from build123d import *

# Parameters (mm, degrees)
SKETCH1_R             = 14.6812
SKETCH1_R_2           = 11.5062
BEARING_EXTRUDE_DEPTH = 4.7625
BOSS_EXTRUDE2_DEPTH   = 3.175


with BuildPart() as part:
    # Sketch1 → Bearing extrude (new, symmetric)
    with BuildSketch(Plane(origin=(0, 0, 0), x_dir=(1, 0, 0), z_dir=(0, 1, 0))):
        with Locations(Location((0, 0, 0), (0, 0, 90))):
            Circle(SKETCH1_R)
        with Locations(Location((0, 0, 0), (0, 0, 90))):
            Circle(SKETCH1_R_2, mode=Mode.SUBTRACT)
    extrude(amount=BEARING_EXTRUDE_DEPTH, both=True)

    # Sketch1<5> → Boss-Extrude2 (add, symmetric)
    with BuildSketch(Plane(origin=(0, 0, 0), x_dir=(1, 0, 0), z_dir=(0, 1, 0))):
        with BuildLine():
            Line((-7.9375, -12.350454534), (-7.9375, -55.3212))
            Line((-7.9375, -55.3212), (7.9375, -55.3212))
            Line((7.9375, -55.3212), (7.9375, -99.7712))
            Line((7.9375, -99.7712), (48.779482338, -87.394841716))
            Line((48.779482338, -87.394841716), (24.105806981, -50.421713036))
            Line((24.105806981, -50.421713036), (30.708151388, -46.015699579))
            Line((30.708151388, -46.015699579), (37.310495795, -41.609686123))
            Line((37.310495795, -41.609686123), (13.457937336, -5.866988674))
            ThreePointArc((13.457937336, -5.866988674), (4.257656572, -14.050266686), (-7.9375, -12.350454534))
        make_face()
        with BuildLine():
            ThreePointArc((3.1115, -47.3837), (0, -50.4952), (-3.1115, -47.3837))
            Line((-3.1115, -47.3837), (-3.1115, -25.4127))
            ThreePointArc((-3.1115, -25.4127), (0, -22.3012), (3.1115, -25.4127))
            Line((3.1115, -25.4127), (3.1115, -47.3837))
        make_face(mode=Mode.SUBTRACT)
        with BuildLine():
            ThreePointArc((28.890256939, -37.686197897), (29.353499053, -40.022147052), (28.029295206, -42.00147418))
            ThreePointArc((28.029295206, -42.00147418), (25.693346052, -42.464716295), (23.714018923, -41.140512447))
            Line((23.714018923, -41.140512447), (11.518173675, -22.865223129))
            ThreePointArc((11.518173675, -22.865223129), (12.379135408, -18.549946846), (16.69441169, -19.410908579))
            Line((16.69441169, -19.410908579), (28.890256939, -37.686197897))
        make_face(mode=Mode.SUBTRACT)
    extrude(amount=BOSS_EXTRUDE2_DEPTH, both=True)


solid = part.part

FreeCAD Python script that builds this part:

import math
import FreeCAD as App
import Part
import Sketcher
from FreeCAD import Vector
Q = App.Units.Quantity

doc = App.newDocument("Part")
body = doc.addObject("PartDesign::Body", "Body")

sketch1 = body.newObject("Sketcher::SketchObject", "Sketch")
sketch1.AttachmentSupport = (doc.getObject("XZ_Plane"), [""])
sketch1.MapMode = "FlatFace"
sketch1.addGeometry(Part.Circle(Vector(0, 0, 0), Vector(0, 0, 1), 15), False)
sketch1.addGeometry(Part.Circle(Vector(0, 0, 0), Vector(0, 0, 1), 12), False)
sketch1.addConstraint(Sketcher.Constraint("Coincident", 0, 3, -1, 1))
sketch1.addConstraint(Sketcher.Constraint("Coincident", 1, 3, -1, 1))
sketch1.addConstraint(Sketcher.Constraint("Diameter", 0, Q("1.156 in")))
sketch1.addConstraint(Sketcher.Constraint("Diameter", 1, Q("0.906 in")))
pad1 = body.newObject("PartDesign::Pad", "Pad")
pad1.Profile = sketch1
pad1.Length = Q("0.375 in")
pad1.Midplane = True

sketch2 = body.newObject("Sketcher::SketchObject", "Sketch001")
sketch2.AttachmentSupport = (doc.getObject("XZ_Plane"), [""])
sketch2.MapMode = "FlatFace"
sketch2.addGeometry(Part.LineSegment(Vector(-7.9, 12.4, 0), Vector(-7.9, 55.3, 0)), False)
sketch2.addGeometry(Part.LineSegment(Vector(-7.9, 55.3, 0), Vector(7.9, 55.3, 0)), False)
sketch2.addGeometry(Part.LineSegment(Vector(7.9, 55.3, 0), Vector(7.9, 99.8, 0)), False)
sketch2.addGeometry(Part.LineSegment(Vector(7.9, 99.8, 0), Vector(48.8, 87.4, 0)), False)
sketch2.addGeometry(Part.LineSegment(Vector(48.8, 87.4, 0), Vector(24.1, 50.4, 0)), False)
sketch2.addGeometry(Part.LineSegment(Vector(24.1, 50.4, 0), Vector(30.7, 46, 0)), False)
sketch2.addGeometry(Part.LineSegment(Vector(30.7, 46, 0), Vector(37.3, 41.6, 0)), False)
sketch2.addGeometry(Part.LineSegment(Vector(37.3, 41.6, 0), Vector(13.5, 5.9, 0)), False)
sketch2.addGeometry(Part.ArcOfCircle(Part.Circle(Vector(0, 0, 0), Vector(0, 0, 1), 14.7), math.radians(24), math.radians(123)), False)
sketch2.addGeometry(Part.LineSegment(Vector(3.1, 25.4, 0), Vector(3.1, 47.4, 0)), False)
sketch2.addGeometry(Part.ArcOfCircle(Part.Circle(Vector(0, 47.4, 0), Vector(0, 0, 1), 3.1), math.radians(0), math.radians(180)), False)
sketch2.addGeometry(Part.LineSegment(Vector(-3.1, 47.4, 0), Vector(-3.1, 25.4, 0)), False)
sketch2.addGeometry(Part.ArcOfCircle(Part.Circle(Vector(0, 25.4, 0), Vector(0, 0, 1), 3.1), math.radians(180), math.radians(360)), False)
sketch2.addGeometry(Part.LineSegment(Vector(16.7, 19.4, 0), Vector(28.9, 37.7, 0)), False)
sketch2.addGeometry(Part.ArcOfCircle(Part.Circle(Vector(26.3, 39.4, 0), Vector(0, 0, 1), 3.1), math.radians(-34), math.radians(56)), False)
sketch2.addGeometry(Part.ArcOfCircle(Part.Circle(Vector(26.3, 39.4, 0), Vector(0, 0, 1), 3.1), math.radians(56), math.radians(146)), False)
sketch2.addGeometry(Part.LineSegment(Vector(23.7, 41.1, 0), Vector(11.5, 22.9, 0)), False)
sketch2.addGeometry(Part.ArcOfCircle(Part.Circle(Vector(14.1, 21.1, 0), Vector(0, 0, 1), 3.1), math.radians(146), math.radians(326)), False)
sketch2.addConstraint(Sketcher.Constraint("Coincident", 0, 2, 1, 1))
sketch2.addConstraint(Sketcher.Constraint("Coincident", 1, 2, 2, 1))
sketch2.addConstraint(Sketcher.Constraint("Coincident", 2, 2, 3, 1))
sketch2.addConstraint(Sketcher.Constraint("Coincident", 3, 2, 4, 1))
sketch2.addConstraint(Sketcher.Constraint("Coincident", 4, 2, 5, 1))
sketch2.addConstraint(Sketcher.Constraint("Coincident", 5, 2, 6, 1))
sketch2.addConstraint(Sketcher.Constraint("Coincident", 6, 2, 7, 1))
sketch2.addConstraint(Sketcher.Constraint("Coincident", 7, 2, 8, 1))
sketch2.addConstraint(Sketcher.Constraint("Coincident", 8, 2, 0, 1))
sketch2.addConstraint(Sketcher.Constraint("Tangent", 9, 2, 10, 1))
sketch2.addConstraint(Sketcher.Constraint("Tangent", 10, 2, 11, 1))
sketch2.addConstraint(Sketcher.Constraint("Tangent", 11, 2, 12, 1))
sketch2.addConstraint(Sketcher.Constraint("Tangent", 12, 2, 9, 1))
sketch2.addConstraint(Sketcher.Constraint("Tangent", 13, 2, 14, 1))
sketch2.addConstraint(Sketcher.Constraint("Tangent", 14, 2, 15, 1))
sketch2.addConstraint(Sketcher.Constraint("Tangent", 15, 2, 16, 1))
sketch2.addConstraint(Sketcher.Constraint("Tangent", 16, 2, 17, 1))
sketch2.addConstraint(Sketcher.Constraint("Tangent", 17, 2, 13, 1))
sketch2.addConstraint(Sketcher.Constraint("Vertical", 0))
sketch2.addConstraint(Sketcher.Constraint("Horizontal", 1))
sketch2.addConstraint(Sketcher.Constraint("Vertical", 2))
sketch2.addConstraint(Sketcher.Constraint("Vertical", 9))
sketch2.addConstraint(Sketcher.Constraint("Vertical", 11))
sketch2.addConstraint(Sketcher.Constraint("Coincident", 8, 3, -1, 1))
sketch2.addConstraint(Sketcher.Constraint("Equal", 12, 14))
sketch2.addConstraint(Sketcher.Constraint("Equal", 14, 15))
sketch2.addConstraint(Sketcher.Constraint("Equal", 15, 17))
sketch2.addConstraint(Sketcher.Constraint("PointOnObject", 10, 3, -2))
sketch2.addConstraint(Sketcher.Constraint("Perpendicular", 4, 5))
sketch2.addConstraint(Sketcher.Constraint("Parallel", 5, 6))
sketch2.addConstraint(Sketcher.Constraint("Perpendicular", 6, 7))
sketch2.addConstraint(Sketcher.Constraint("Parallel", 7, 13))
sketch2.addConstraint(Sketcher.Constraint("Equal", 5, 6))
sketch2.addConstraint(Sketcher.Constraint("Radius", 8, Q("0.578 in")))
sketch2.addConstraint(Sketcher.Constraint("DistanceY", 2, 1, 2, 2, Q("1.75 in")))
sketch2.addConstraint(Sketcher.Constraint("Radius", 10, Q("0.1225 in")))
sketch2.addConstraint(Sketcher.Constraint("Distance", 4, Q("1.75 in")))
sketch2.addConstraint(Sketcher.Constraint("DistanceX", 1, 1, 1, 2, Q("0.625 in")))
sketch2.addConstraint(Sketcher.Constraint("DistanceY", 9, 1, 9, 2, Q("0.865 in")))
sketch2.addConstraint(Sketcher.Constraint("DistanceX", 9, 2, 1, 2, Q("0.19 in")))
sketch2.addConstraint(Sketcher.Constraint("Distance", 5, Q("0.3125 in")))
sketch2.addConstraint(Sketcher.Constraint("Distance", 13, Q("0.865 in")))
sketch2.addConstraint(Sketcher.Constraint("DistanceY", -1, 1, 0, 2, Q("2.178 in")))
sketch2.addConstraint(Sketcher.Constraint("DistanceY", 10, 3, 0, 2, Q("0.3125 in")))
sketch2.addConstraint(Sketcher.Constraint("DistanceY", 15, 3, 4, 2, Q("0.4333999 in")))
sketch2.addConstraint(Sketcher.Constraint("DistanceX", 15, 3, 6, 2, Q("0.4333999 in")))
sketch2.addConstraint(Sketcher.Constraint("DistanceY", -1, 1, 5, 2, 46.0157))
sketch2.addConstraint(Sketcher.Constraint("DistanceX", 7, 2, 14, 3, 12.844201))
sketch2.addConstraint(Sketcher.Constraint("DistanceY", 13, 2, 5, 2, 8.329502))
sketch2.addConstraint(Sketcher.Constraint("DistanceY", 15, 3, 14, 2, 2.588119))
pad2 = body.newObject("PartDesign::Pad", "Pad001")
pad2.Profile = sketch2
pad2.Length = Q("0.25 in")
pad2.Midplane = True

doc.recompute()
